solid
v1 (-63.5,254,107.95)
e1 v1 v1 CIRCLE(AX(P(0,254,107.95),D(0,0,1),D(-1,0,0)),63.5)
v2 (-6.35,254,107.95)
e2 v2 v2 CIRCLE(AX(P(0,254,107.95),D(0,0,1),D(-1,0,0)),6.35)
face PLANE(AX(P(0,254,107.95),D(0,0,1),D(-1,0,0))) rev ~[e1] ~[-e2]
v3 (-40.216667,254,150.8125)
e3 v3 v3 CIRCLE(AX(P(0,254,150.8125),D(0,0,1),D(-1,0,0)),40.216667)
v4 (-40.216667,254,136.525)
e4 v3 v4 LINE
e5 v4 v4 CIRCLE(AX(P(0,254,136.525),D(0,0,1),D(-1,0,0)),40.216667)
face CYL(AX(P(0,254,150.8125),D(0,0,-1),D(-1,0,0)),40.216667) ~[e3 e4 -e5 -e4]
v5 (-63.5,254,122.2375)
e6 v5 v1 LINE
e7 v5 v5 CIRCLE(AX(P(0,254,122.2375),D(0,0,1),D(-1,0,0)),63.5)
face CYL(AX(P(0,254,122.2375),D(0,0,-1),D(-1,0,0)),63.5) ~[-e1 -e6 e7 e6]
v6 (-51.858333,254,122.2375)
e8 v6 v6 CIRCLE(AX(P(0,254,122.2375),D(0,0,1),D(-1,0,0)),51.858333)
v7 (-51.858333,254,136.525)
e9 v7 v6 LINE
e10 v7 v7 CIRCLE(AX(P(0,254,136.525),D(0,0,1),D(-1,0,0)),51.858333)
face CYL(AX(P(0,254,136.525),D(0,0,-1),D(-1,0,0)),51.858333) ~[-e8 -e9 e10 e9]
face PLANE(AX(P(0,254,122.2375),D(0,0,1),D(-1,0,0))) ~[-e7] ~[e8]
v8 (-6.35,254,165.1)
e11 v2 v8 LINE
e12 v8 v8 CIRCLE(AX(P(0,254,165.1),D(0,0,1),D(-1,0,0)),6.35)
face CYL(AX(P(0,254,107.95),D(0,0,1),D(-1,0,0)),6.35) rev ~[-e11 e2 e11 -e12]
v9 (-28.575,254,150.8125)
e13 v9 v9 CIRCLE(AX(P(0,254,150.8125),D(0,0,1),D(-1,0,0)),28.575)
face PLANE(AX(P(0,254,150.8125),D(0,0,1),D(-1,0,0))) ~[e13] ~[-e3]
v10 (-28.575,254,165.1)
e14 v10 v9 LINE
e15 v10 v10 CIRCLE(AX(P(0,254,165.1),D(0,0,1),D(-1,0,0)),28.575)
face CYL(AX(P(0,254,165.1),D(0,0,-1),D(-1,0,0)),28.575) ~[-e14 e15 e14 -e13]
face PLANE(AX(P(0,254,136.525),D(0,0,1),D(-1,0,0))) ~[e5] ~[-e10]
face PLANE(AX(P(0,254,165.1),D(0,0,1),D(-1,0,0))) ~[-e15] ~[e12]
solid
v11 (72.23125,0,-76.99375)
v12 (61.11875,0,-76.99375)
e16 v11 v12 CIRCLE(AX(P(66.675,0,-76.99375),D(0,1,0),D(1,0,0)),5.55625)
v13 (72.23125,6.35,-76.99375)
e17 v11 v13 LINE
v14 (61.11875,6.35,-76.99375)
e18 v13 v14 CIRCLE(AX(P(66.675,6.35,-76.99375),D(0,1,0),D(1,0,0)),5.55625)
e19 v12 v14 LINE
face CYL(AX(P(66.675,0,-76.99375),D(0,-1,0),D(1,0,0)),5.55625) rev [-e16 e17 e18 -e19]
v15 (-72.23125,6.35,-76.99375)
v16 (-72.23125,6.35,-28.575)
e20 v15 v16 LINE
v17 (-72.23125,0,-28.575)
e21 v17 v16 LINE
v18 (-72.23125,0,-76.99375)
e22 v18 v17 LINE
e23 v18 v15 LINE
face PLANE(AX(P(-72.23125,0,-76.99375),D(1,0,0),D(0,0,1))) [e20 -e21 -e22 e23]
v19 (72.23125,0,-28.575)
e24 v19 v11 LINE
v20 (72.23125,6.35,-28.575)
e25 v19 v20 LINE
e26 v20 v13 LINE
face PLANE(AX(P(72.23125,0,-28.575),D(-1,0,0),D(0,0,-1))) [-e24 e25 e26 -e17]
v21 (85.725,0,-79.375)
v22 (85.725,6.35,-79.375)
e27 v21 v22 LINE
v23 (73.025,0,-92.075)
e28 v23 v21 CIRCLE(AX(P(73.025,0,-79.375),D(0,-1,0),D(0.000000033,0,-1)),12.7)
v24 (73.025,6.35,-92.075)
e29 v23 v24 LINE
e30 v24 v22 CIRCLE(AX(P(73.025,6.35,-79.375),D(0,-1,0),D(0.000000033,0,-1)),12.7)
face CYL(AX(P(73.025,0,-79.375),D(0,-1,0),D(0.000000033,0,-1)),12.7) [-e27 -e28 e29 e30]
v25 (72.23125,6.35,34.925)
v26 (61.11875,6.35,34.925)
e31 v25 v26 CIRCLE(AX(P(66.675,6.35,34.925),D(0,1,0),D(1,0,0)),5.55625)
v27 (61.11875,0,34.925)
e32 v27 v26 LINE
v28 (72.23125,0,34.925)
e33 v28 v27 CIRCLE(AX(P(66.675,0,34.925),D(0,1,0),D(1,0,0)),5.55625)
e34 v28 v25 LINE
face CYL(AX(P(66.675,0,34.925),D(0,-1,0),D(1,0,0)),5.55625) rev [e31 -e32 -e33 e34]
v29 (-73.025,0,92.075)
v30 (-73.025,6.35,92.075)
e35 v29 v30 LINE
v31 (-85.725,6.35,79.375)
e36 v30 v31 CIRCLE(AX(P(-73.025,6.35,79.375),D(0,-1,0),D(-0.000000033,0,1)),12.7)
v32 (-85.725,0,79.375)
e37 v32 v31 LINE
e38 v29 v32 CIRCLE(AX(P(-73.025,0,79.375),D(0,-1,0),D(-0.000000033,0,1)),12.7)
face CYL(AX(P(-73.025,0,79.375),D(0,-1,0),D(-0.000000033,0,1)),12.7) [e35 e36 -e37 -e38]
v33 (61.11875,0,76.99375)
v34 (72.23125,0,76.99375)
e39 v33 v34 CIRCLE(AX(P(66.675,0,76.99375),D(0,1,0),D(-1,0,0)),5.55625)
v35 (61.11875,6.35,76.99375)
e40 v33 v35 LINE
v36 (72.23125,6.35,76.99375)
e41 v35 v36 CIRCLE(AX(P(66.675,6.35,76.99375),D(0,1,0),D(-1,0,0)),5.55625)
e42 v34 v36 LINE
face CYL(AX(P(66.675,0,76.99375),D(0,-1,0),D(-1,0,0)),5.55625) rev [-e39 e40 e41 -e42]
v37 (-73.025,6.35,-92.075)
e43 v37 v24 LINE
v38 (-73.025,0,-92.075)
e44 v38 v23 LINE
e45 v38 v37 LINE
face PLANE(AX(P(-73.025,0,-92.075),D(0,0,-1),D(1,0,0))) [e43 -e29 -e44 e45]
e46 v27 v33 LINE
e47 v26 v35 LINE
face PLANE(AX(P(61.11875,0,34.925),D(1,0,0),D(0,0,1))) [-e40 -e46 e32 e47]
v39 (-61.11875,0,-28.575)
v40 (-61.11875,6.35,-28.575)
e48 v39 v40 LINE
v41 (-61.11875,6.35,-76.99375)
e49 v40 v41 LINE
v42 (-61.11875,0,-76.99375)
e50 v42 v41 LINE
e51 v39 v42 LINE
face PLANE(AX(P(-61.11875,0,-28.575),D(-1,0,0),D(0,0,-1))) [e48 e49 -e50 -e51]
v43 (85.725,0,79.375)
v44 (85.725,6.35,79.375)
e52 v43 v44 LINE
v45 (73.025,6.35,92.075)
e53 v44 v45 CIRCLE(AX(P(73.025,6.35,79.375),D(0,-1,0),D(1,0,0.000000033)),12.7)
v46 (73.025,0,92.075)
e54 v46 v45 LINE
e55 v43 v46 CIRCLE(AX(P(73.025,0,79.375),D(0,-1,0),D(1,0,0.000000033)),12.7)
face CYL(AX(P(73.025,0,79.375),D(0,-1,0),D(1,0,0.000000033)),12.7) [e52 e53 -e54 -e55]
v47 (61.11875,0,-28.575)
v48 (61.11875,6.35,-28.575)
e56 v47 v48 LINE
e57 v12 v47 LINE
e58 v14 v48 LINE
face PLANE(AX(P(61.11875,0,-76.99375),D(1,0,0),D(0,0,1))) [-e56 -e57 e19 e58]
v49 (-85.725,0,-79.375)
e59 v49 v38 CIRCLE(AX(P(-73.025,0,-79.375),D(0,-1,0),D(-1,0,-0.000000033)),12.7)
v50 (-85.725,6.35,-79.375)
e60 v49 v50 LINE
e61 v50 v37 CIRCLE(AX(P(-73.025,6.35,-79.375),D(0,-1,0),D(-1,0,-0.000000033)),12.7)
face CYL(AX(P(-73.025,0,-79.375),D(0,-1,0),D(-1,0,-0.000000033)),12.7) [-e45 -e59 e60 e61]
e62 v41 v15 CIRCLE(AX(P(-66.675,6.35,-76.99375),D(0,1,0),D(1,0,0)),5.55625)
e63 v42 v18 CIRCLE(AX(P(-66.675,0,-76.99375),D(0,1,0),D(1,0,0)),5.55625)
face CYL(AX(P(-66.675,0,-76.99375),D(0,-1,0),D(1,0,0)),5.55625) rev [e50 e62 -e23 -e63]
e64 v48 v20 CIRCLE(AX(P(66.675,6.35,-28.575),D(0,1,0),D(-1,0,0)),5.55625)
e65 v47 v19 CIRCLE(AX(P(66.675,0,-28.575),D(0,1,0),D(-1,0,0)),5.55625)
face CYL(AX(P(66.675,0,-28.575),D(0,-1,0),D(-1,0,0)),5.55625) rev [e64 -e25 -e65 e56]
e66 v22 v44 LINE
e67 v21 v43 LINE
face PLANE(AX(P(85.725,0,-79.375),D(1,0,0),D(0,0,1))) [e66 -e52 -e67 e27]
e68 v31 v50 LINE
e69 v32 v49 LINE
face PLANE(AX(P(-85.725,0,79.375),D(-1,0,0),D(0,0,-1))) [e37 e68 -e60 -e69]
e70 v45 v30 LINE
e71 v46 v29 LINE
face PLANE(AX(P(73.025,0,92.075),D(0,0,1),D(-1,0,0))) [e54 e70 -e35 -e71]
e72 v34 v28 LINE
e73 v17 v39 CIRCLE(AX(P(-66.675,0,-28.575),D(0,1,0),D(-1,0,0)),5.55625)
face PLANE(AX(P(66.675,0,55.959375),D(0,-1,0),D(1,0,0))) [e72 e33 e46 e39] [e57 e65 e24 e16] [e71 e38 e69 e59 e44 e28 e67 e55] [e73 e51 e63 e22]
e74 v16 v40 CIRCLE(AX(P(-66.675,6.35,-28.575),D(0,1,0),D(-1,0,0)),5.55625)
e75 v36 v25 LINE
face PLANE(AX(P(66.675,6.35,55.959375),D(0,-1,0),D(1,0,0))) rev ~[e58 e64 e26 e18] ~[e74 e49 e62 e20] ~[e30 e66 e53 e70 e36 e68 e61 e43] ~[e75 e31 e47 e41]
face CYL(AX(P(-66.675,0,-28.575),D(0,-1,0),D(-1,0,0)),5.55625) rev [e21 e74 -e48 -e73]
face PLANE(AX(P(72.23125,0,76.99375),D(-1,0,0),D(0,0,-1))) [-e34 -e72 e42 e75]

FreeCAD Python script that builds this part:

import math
import FreeCAD as App
import Part
import Sketcher
from FreeCAD import Vector
Q = App.Units.Quantity


def add_polygon(sketch, points):
    """Adds a closed chain of lines whose ends are joined by coincident constraints."""
    first, n = sketch.GeometryCount, len(points)
    for a, b in zip(points, points[1:] + points[:1]):
        sketch.addGeometry(Part.LineSegment(App.Vector(*a, 0), App.Vector(*b, 0)), False)
    for i in range(n):
        sketch.addConstraint(Sketcher.Constraint("Coincident", first + i, 2, first + (i + 1) % n, 1))

doc = App.newDocument("Part")
body = doc.addObject("PartDesign::Body", "Body")

# Sketch on XZ plane
sketch1 = body.newObject("Sketcher::SketchObject", "Sketch")
sketch1.AttachmentSupport = (doc.getObject("XZ_Plane"), [""])
sketch1.MapMode = "FlatFace"
sketch1.addGeometry([
    Part.ArcOfCircle(Part.Circle(Vector(73, 79, 0), Vector(0, 0, 1), 13), math.radians(0), math.radians(90)),  # 0
    Part.LineSegment(Vector(73, 92, 0), Vector(-73, 92, 0)),  # 1
    Part.ArcOfCircle(Part.Circle(Vector(-73, 79, 0), Vector(0, 0, 1), 13), math.radians(90), math.radians(180)),  # 2
    Part.LineSegment(Vector(-86, 79, 0), Vector(-86, -79, 0)),  # 3
    Part.ArcOfCircle(Part.Circle(Vector(-73, -79, 0), Vector(0, 0, 1), 13), math.radians(-180), math.radians(-90)),  # 4
    Part.LineSegment(Vector(-73, -92, 0), Vector(73, -92, 0)),  # 5
    Part.ArcOfCircle(Part.Circle(Vector(73, -79, 0), Vector(0, 0, 1), 13), math.radians(-90), math.radians(0)),  # 6
    Part.LineSegment(Vector(86, -79, 0), Vector(86, 79, 0)),  # 7
    Part.ArcOfCircle(Part.Circle(Vector(-67, -29, 0), Vector(0, 0, 1), 6), math.radians(0), math.radians(180)),  # 8
    Part.LineSegment(Vector(-61, -29, 0), Vector(-61, -77, 0)),  # 9
    Part.ArcOfCircle(Part.Circle(Vector(-67, -77, 0), Vector(0, 0, 1), 6), math.radians(180), math.radians(360)),  # 10
    Part.LineSegment(Vector(-72, -77, 0), Vector(-72, -29, 0)),  # 11
    Part.ArcOfCircle(Part.Circle(Vector(67, -77, 0), Vector(0, 0, 1), 6), math.radians(180), math.radians(360)),  # 12
    Part.LineSegment(Vector(61, -77, 0), Vector(61, -29, 0)),  # 13
    Part.ArcOfCircle(Part.Circle(Vector(67, -29, 0), Vector(0, 0, 1), 6), math.radians(0), math.radians(180)),  # 14
    Part.LineSegment(Vector(72, -29, 0), Vector(72, -77, 0)),  # 15
    Part.ArcOfCircle(Part.Circle(Vector(67, 35, 0), Vector(0, 0, 1), 6), math.radians(180), math.radians(360)),  # 16
    Part.LineSegment(Vector(61, 35, 0), Vector(61, 77, 0)),  # 17
    Part.ArcOfCircle(Part.Circle(Vector(67, 77, 0), Vector(0, 0, 1), 6), math.radians(0), math.radians(180)),  # 18
    Part.LineSegment(Vector(72, 77, 0), Vector(72, 35, 0)),  # 19
], False)
sketch1.addConstraint([
    Sketcher.Constraint("Tangent", 0, 2, 1, 1),
    Sketcher.Constraint("Tangent", 1, 2, 2, 1),
    Sketcher.Constraint("Tangent", 2, 2, 3, 1),
    Sketcher.Constraint("Tangent", 3, 2, 4, 1),
    Sketcher.Constraint("Tangent", 4, 2, 5, 1),
    Sketcher.Constraint("Tangent", 5, 2, 6, 1),
    Sketcher.Constraint("Tangent", 6, 2, 7, 1),
    Sketcher.Constraint("Tangent", 7, 2, 0, 1),
    Sketcher.Constraint("Tangent", 8, 1, 9, 1),
    Sketcher.Constraint("Tangent", 9, 2, 10, 2),
    Sketcher.Constraint("Tangent", 10, 1, 11, 1),
    Sketcher.Constraint("Tangent", 11, 2, 8, 2),
    Sketcher.Constraint("Tangent", 12, 1, 13, 1),
    Sketcher.Constraint("Tangent", 13, 2, 14, 2),
    Sketcher.Constraint("Tangent", 14, 1, 15, 1),
    Sketcher.Constraint("Tangent", 15, 2, 12, 2),
    Sketcher.Constraint("Tangent", 16, 1, 17, 1),
    Sketcher.Constraint("Tangent", 17, 2, 18, 2),
    Sketcher.Constraint("Tangent", 18, 1, 19, 1),
    Sketcher.Constraint("Tangent", 19, 2, 16, 2),
    Sketcher.Constraint("Horizontal", 1),
    Sketcher.Constraint("Vertical", 3),
    Sketcher.Constraint("Horizontal", 5),
    Sketcher.Constraint("Vertical", 7),
    Sketcher.Constraint("Vertical", 9),
    Sketcher.Constraint("Vertical", 11),
    Sketcher.Constraint("Vertical", 13),
    Sketcher.Constraint("Vertical", 15),
    Sketcher.Constraint("Vertical", 17),
    Sketcher.Constraint("Vertical", 19),
    Sketcher.Constraint("Equal", 0, 2),
    Sketcher.Constraint("Equal", 2, 4),
    Sketcher.Constraint("Equal", 4, 6),
    Sketcher.Constraint("Equal", 10, 12),
    Sketcher.Constraint("Equal", 14, 16),
    Sketcher.Constraint("Symmetric", 0, 3, 4, 3, -1, 1),
    Sketcher.Constraint("Symmetric", 10, 3, 18, 3, -1, 1),
    Sketcher.Constraint("Symmetric", 10, 3, 12, 3, -2),
    Sketcher.Constraint("Horizontal", 8, 3, 14, 3),
    Sketcher.Constraint("Radius", 0, Q("0.5 in")),
    Sketcher.Constraint("Radius", 8, Q("0.21875 in")),
    Sketcher.Constraint("DistanceY", 4, 3, 8, 3, Q("2 in")),
    Sketcher.Constraint("DistanceX", 2, 2, 18, 3, Q("6 in")),
    Sketcher.Constraint("DistanceY", 5, 2, 16, 3, Q("5 in")),
    Sketcher.Constraint("DistanceX", 1, 2, 1, 1, Q("5.75 in")),
    Sketcher.Constraint("DistanceY", 3, 2, 3, 1, Q("6.25 in")),
    Sketcher.Constraint("DistanceY", 9, 2, 9, 1, Q("1.90625 in")),
])
pad1 = body.newObject("PartDesign::Pad", "Pad")
pad1.Profile = sketch1
pad1.Length = Q("0.25 in")
pad1.Reversed = True
body2 = doc.addObject("PartDesign::Body", "Body001")

# Sketch on XZ plane
sketch2 = body2.newObject("Sketcher::SketchObject", "Sketch001")
sketch2.AttachmentSupport = (doc.getObject("XZ_Plane001"), [""])
sketch2.MapMode = "FlatFace"
sketch2.AttachmentOffset = App.Placement(Vector(0, 0, -10 * 25.4), App.Rotation())
add_polygon(sketch2, [(-64, 108), (-6, 108), (-6, 165), (-29, 165), (-29, 151), (-40, 151), (-40, 137), (-52, 137), (-52, 122), (-64, 122)])  # lines 0-9
sketch2.addConstraint([
    Sketcher.Constraint("Horizontal", 0),
    Sketcher.Constraint("Vertical", 1),
    Sketcher.Constraint("Horizontal", 2),
    Sketcher.Constraint("Vertical", 3),
    Sketcher.Constraint("Horizontal", 4),
    Sketcher.Constraint("Vertical", 5),
    Sketcher.Constraint("Horizontal", 6),
    Sketcher.Constraint("Vertical", 7),
    Sketcher.Constraint("Horizontal", 8),
    Sketcher.Constraint("Vertical", 9),
    Sketcher.Constraint("Equal", 4, 6),
    Sketcher.Constraint("Equal", 6, 8),
    Sketcher.Constraint("Equal", 0, 1),
    Sketcher.Constraint("Equal", 3, 5),
    Sketcher.Constraint("Equal", 5, 7),
    Sketcher.Constraint("Equal", 7, 9),
    Sketcher.Constraint("DistanceX", 0, 1, 0, 2, Q("2.25 in")),
    Sketcher.Constraint("DistanceY", -1, 1, 1, 2, Q("6.5 in")),
    Sketcher.Constraint("DistanceX", 8, 2, -1, 1, Q("2.5 in")),
    Sketcher.Constraint("DistanceX", 2, 2, 2, 1, Q("0.875 in")),
])
revolution = body2.newObject("PartDesign::Revolution", "Revolution")
revolution.Profile = sketch2
revolution.ReferenceAxis = (sketch2, ["V_Axis"])
revolution.Angle = 360

doc.recompute()
